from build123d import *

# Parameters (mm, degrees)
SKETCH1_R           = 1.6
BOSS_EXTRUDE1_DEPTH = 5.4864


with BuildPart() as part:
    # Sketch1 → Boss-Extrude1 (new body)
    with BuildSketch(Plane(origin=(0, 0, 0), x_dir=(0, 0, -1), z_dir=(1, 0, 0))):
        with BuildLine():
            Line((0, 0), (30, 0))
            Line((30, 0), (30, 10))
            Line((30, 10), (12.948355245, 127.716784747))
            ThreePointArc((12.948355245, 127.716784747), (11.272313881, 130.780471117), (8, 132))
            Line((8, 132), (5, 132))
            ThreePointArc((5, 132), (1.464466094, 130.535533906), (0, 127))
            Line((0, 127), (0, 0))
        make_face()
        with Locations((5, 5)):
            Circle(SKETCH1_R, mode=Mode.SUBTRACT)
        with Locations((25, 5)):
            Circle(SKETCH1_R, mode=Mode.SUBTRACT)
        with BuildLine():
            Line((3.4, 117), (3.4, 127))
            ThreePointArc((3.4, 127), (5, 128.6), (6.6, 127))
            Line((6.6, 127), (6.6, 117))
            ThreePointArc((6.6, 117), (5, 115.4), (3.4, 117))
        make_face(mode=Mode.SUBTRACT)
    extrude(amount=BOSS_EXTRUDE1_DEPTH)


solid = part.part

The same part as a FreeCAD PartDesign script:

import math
import FreeCAD as App
import Part
import Sketcher
Q = App.Units.Quantity

doc = App.newDocument("Part")
body = doc.addObject("PartDesign::Body", "Body")

sketch1 = body.newObject("Sketcher::SketchObject", "Sketch")
sketch1.AttachmentSupport = (doc.getObject("YZ_Plane"), [""])
sketch1.MapMode = "FlatFace"
sketch1.addGeometry([
    Part.LineSegment(App.Vector(0, 0, 0), App.Vector(0, -30, 0)),
    Part.LineSegment(App.Vector(0, -30, 0), App.Vector(10, -30, 0)),
    Part.LineSegment(App.Vector(10, -30, 0), App.Vector(127.7, -12.9, 0)),
    Part.ArcOfCircle(Part.Circle(App.Vector(127, -8, 0), App.Vector(0, 0, 1), 5), math.radians(-82), math.radians(0)),
    Part.LineSegment(App.Vector(132, -8, 0), App.Vector(132, -5, 0)),
    Part.ArcOfCircle(Part.Circle(App.Vector(127, -5, 0), App.Vector(0, 0, 1), 5), math.radians(0), math.radians(90)),
    Part.LineSegment(App.Vector(127, 0, 0), App.Vector(0, 0, 0)),
    Part.Circle(App.Vector(5, -5, 0), App.Vector(0, 0, 1), 1.6),
    Part.Circle(App.Vector(5, -25, 0), App.Vector(0, 0, 1), 1.6),
    Part.ArcOfCircle(Part.Circle(App.Vector(117, -5, 0), App.Vector(0, 0, 1), 1.6), math.radians(90), math.radians(270)),
    Part.LineSegment(App.Vector(117, -3.4, 0), App.Vector(127, -3.4, 0)),
    Part.ArcOfCircle(Part.Circle(App.Vector(127, -5, 0), App.Vector(0, 0, 1), 1.6), math.radians(-90), math.radians(90)),
    Part.LineSegment(App.Vector(127, -6.6, 0), App.Vector(117, -6.6, 0)),
], False)
sketch1.addConstraint([
    Sketcher.Constraint("Coincident", 0, 2, 1, 1),
    Sketcher.Constraint("Coincident", 1, 2, 2, 1),
    Sketcher.Constraint("Tangent", 2, 2, 3, 1),
    Sketcher.Constraint("Tangent", 3, 2, 4, 1),
    Sketcher.Constraint("Tangent", 4, 2, 5, 1),
    Sketcher.Constraint("Tangent", 5, 2, 6, 1),
    Sketcher.Constraint("Coincident", 6, 2, 0, 1),
    Sketcher.Constraint("Tangent", 9, 1, 10, 1),
    Sketcher.Constraint("Tangent", 10, 2, 11, 2),
    Sketcher.Constraint("Tangent", 11, 1, 12, 1),
    Sketcher.Constraint("Tangent", 12, 2, 9, 2),
    Sketcher.Constraint("Vertical", 0),
    Sketcher.Constraint("Horizontal", 1),
    Sketcher.Constraint("Vertical", 4),
    Sketcher.Constraint("Horizontal", 6),
    Sketcher.Constraint("Horizontal", 10),
    Sketcher.Constraint("Horizontal", 12),
    Sketcher.Constraint("Coincident", 6, 2, -1, 1),
    Sketcher.Constraint("Coincident", 11, 3, 5, 3),
    Sketcher.Constraint("Equal", 3, 5),
    Sketcher.Constraint("Equal", 7, 8),
    Sketcher.Constraint("Equal", 8, 9),
    Sketcher.Constraint("Horizontal", 5, 3, 7, 3),
    Sketcher.Constraint("Vertical", 7, 3, 8, 3),
    Sketcher.Constraint("Equal", 1, 10),
    Sketcher.Constraint("Radius", 3, Q("5 mm")),
    Sketcher.Constraint("Diameter", 7, Q("3.2 mm")),
    Sketcher.Constraint("DistanceX", 1, 1, 1, 2, Q("10 mm")),
    Sketcher.Constraint("DistanceX", 6, 2, 6, 1, Q("127 mm")),
    Sketcher.Constraint("DistanceY", 0, 2, 0, 1, Q("30 mm")),
    Sketcher.Constraint("DistanceY", 4, 1, 4, 2, Q("3 mm")),
    Sketcher.Constraint("DistanceX", -1, 1, 7, 3, Q("5 mm")),
    Sketcher.Constraint("DistanceY", 8, 3, -1, 1, Q("25 mm")),
])
pad1 = body.newObject("PartDesign::Pad", "Pad")
pad1.Profile = sketch1
pad1.Length = 5.4864

doc.recompute()
